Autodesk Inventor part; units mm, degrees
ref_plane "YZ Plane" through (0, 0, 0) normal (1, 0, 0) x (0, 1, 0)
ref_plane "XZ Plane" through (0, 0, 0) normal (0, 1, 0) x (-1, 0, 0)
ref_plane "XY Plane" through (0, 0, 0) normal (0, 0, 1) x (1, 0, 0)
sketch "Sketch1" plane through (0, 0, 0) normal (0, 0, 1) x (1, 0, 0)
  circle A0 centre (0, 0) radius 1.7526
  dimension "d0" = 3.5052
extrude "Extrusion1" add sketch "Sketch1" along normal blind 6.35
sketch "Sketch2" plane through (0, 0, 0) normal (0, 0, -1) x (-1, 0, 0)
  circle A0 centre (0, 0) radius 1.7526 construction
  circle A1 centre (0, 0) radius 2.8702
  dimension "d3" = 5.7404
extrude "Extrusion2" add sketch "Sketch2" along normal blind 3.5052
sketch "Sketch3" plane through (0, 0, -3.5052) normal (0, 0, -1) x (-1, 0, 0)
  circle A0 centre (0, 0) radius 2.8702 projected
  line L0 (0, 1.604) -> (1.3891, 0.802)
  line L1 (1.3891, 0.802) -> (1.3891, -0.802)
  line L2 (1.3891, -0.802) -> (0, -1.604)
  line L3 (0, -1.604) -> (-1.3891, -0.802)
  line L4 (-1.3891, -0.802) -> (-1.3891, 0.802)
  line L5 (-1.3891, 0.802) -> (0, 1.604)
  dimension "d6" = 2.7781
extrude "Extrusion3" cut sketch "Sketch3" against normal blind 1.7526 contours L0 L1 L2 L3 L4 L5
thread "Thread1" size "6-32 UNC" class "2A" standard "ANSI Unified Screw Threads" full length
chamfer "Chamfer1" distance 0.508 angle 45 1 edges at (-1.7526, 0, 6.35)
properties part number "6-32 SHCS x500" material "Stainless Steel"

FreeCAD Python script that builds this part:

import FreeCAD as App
import Part
import Sketcher
from FreeCAD import Vector
Q = App.Units.Quantity


def edges_at(feature, points):
    """Names of the edges that pass closest to the given points."""
    edges = feature.Shape.Edges
    near = lambda p: min(range(len(edges)), key=lambda i: edges[i].distToShape(Part.Vertex(*p))[0])
    return sorted({f"Edge{near(p) + 1}" for p in points})

doc = App.newDocument("Part")
body = doc.addObject("PartDesign::Body", "Body")

sketch1 = body.newObject("Sketcher::SketchObject", "Sketch")
sketch1.AttachmentSupport = (doc.getObject("XY_Plane"), [""])
sketch1.MapMode = "FlatFace"
sketch1.addGeometry(Part.Circle(Vector(0, 0, 0), Vector(0, 0, 1), 1.8), False)
sketch1.addConstraint(Sketcher.Constraint("Coincident", 0, 3, -1, 1))
sketch1.addConstraint(Sketcher.Constraint("Diameter", 0, Q("0.138 in")))
pad1 = body.newObject("PartDesign::Pad", "Pad")
pad1.Profile = sketch1
pad1.Length = Q("0.25 in")

sketch2 = body.newObject("Sketcher::SketchObject", "Sketch001")
sketch2.AttachmentSupport = (doc.getObject("XY_Plane"), [""])
sketch2.MapMode = "FlatFace"
sketch2.addGeometry(Part.Circle(Vector(0, 0, 0), Vector(0, 0, 1), 2.9), False)
sketch2.addConstraint(Sketcher.Constraint("Coincident", 0, 3, -1, 1))
sketch2.addConstraint(Sketcher.Constraint("Diameter", 0, Q("0.226 in")))
pad2 = body.newObject("PartDesign::Pad", "Pad001")
pad2.Profile = sketch2
pad2.Length = Q("0.138 in")
pad2.Reversed = True

sketch3 = body.newObject("Sketcher::SketchObject", "Sketch002")
sketch3.AttachmentSupport = (doc.getObject("XY_Plane"), [""])
sketch3.MapMode = "FlatFace"
sketch3.AttachmentOffset = App.Placement(Vector(0, 0, -0.138 * 25.4), App.Rotation())
sketch3.addGeometry(Part.LineSegment(Vector(-1.4, 0.8, 0), Vector(0, 1.6, 0)), False)
sketch3.addGeometry(Part.LineSegment(Vector(0, 1.6, 0), Vector(1.4, 0.8, 0)), False)
sketch3.addGeometry(Part.LineSegment(Vector(1.4, 0.8, 0), Vector(1.4, -0.8, 0)), False)
sketch3.addGeometry(Part.LineSegment(Vector(1.4, -0.8, 0), Vector(0, -1.6, 0)), False)
sketch3.addGeometry(Part.LineSegment(Vector(0, -1.6, 0), Vector(-1.4, -0.8, 0)), False)
sketch3.addGeometry(Part.LineSegment(Vector(-1.4, -0.8, 0), Vector(-1.4, 0.8, 0)), False)
sketch3.addConstraint(Sketcher.Constraint("Coincident", 0, 2, 1, 1))
sketch3.addConstraint(Sketcher.Constraint("Coincident", 1, 2, 2, 1))
sketch3.addConstraint(Sketcher.Constraint("Coincident", 2, 2, 3, 1))
sketch3.addConstraint(Sketcher.Constraint("Coincident", 3, 2, 4, 1))
sketch3.addConstraint(Sketcher.Constraint("Coincident", 4, 2, 5, 1))
sketch3.addConstraint(Sketcher.Constraint("Coincident", 5, 2, 0, 1))
sketch3.addConstraint(Sketcher.Constraint("Vertical", 2))
sketch3.addConstraint(Sketcher.Constraint("Vertical", 5))
sketch3.addConstraint(Sketcher.Constraint("Symmetric", 0, 2, 3, 2, -1, 1))
sketch3.addConstraint(Sketcher.Constraint("Symmetric", 1, 2, 4, 2, -1, 1))
sketch3.addConstraint(Sketcher.Constraint("PointOnObject", 0, 2, -2))
sketch3.addConstraint(Sketcher.Constraint("Parallel", 0, 3))
sketch3.addConstraint(Sketcher.Constraint("Horizontal", 2, 2, 4, 2))
sketch3.addConstraint(Sketcher.Constraint("Angle", 0, Q("30 deg")))
sketch3.addConstraint(Sketcher.Constraint("DistanceX", 4, 2, 2, 2, Q("0.109378 in")))
sketch3.addConstraint(Sketcher.Constraint("DistanceY", 2, 2, 2, 1, 1.604))
pocket1 = body.newObject("PartDesign::Pocket", "Pocket")
pocket1.Profile = sketch3
pocket1.Length = Q("0.069 in")
pocket1.Reversed = True
doc.recompute()

chamfer = body.newObject("PartDesign::Chamfer", "Chamfer")
chamfer.Base = (pocket1, edges_at(pocket1, [(-1.753, 0, 6.35)]))
chamfer.Size = Q("0.02 in")

doc.recompute()
